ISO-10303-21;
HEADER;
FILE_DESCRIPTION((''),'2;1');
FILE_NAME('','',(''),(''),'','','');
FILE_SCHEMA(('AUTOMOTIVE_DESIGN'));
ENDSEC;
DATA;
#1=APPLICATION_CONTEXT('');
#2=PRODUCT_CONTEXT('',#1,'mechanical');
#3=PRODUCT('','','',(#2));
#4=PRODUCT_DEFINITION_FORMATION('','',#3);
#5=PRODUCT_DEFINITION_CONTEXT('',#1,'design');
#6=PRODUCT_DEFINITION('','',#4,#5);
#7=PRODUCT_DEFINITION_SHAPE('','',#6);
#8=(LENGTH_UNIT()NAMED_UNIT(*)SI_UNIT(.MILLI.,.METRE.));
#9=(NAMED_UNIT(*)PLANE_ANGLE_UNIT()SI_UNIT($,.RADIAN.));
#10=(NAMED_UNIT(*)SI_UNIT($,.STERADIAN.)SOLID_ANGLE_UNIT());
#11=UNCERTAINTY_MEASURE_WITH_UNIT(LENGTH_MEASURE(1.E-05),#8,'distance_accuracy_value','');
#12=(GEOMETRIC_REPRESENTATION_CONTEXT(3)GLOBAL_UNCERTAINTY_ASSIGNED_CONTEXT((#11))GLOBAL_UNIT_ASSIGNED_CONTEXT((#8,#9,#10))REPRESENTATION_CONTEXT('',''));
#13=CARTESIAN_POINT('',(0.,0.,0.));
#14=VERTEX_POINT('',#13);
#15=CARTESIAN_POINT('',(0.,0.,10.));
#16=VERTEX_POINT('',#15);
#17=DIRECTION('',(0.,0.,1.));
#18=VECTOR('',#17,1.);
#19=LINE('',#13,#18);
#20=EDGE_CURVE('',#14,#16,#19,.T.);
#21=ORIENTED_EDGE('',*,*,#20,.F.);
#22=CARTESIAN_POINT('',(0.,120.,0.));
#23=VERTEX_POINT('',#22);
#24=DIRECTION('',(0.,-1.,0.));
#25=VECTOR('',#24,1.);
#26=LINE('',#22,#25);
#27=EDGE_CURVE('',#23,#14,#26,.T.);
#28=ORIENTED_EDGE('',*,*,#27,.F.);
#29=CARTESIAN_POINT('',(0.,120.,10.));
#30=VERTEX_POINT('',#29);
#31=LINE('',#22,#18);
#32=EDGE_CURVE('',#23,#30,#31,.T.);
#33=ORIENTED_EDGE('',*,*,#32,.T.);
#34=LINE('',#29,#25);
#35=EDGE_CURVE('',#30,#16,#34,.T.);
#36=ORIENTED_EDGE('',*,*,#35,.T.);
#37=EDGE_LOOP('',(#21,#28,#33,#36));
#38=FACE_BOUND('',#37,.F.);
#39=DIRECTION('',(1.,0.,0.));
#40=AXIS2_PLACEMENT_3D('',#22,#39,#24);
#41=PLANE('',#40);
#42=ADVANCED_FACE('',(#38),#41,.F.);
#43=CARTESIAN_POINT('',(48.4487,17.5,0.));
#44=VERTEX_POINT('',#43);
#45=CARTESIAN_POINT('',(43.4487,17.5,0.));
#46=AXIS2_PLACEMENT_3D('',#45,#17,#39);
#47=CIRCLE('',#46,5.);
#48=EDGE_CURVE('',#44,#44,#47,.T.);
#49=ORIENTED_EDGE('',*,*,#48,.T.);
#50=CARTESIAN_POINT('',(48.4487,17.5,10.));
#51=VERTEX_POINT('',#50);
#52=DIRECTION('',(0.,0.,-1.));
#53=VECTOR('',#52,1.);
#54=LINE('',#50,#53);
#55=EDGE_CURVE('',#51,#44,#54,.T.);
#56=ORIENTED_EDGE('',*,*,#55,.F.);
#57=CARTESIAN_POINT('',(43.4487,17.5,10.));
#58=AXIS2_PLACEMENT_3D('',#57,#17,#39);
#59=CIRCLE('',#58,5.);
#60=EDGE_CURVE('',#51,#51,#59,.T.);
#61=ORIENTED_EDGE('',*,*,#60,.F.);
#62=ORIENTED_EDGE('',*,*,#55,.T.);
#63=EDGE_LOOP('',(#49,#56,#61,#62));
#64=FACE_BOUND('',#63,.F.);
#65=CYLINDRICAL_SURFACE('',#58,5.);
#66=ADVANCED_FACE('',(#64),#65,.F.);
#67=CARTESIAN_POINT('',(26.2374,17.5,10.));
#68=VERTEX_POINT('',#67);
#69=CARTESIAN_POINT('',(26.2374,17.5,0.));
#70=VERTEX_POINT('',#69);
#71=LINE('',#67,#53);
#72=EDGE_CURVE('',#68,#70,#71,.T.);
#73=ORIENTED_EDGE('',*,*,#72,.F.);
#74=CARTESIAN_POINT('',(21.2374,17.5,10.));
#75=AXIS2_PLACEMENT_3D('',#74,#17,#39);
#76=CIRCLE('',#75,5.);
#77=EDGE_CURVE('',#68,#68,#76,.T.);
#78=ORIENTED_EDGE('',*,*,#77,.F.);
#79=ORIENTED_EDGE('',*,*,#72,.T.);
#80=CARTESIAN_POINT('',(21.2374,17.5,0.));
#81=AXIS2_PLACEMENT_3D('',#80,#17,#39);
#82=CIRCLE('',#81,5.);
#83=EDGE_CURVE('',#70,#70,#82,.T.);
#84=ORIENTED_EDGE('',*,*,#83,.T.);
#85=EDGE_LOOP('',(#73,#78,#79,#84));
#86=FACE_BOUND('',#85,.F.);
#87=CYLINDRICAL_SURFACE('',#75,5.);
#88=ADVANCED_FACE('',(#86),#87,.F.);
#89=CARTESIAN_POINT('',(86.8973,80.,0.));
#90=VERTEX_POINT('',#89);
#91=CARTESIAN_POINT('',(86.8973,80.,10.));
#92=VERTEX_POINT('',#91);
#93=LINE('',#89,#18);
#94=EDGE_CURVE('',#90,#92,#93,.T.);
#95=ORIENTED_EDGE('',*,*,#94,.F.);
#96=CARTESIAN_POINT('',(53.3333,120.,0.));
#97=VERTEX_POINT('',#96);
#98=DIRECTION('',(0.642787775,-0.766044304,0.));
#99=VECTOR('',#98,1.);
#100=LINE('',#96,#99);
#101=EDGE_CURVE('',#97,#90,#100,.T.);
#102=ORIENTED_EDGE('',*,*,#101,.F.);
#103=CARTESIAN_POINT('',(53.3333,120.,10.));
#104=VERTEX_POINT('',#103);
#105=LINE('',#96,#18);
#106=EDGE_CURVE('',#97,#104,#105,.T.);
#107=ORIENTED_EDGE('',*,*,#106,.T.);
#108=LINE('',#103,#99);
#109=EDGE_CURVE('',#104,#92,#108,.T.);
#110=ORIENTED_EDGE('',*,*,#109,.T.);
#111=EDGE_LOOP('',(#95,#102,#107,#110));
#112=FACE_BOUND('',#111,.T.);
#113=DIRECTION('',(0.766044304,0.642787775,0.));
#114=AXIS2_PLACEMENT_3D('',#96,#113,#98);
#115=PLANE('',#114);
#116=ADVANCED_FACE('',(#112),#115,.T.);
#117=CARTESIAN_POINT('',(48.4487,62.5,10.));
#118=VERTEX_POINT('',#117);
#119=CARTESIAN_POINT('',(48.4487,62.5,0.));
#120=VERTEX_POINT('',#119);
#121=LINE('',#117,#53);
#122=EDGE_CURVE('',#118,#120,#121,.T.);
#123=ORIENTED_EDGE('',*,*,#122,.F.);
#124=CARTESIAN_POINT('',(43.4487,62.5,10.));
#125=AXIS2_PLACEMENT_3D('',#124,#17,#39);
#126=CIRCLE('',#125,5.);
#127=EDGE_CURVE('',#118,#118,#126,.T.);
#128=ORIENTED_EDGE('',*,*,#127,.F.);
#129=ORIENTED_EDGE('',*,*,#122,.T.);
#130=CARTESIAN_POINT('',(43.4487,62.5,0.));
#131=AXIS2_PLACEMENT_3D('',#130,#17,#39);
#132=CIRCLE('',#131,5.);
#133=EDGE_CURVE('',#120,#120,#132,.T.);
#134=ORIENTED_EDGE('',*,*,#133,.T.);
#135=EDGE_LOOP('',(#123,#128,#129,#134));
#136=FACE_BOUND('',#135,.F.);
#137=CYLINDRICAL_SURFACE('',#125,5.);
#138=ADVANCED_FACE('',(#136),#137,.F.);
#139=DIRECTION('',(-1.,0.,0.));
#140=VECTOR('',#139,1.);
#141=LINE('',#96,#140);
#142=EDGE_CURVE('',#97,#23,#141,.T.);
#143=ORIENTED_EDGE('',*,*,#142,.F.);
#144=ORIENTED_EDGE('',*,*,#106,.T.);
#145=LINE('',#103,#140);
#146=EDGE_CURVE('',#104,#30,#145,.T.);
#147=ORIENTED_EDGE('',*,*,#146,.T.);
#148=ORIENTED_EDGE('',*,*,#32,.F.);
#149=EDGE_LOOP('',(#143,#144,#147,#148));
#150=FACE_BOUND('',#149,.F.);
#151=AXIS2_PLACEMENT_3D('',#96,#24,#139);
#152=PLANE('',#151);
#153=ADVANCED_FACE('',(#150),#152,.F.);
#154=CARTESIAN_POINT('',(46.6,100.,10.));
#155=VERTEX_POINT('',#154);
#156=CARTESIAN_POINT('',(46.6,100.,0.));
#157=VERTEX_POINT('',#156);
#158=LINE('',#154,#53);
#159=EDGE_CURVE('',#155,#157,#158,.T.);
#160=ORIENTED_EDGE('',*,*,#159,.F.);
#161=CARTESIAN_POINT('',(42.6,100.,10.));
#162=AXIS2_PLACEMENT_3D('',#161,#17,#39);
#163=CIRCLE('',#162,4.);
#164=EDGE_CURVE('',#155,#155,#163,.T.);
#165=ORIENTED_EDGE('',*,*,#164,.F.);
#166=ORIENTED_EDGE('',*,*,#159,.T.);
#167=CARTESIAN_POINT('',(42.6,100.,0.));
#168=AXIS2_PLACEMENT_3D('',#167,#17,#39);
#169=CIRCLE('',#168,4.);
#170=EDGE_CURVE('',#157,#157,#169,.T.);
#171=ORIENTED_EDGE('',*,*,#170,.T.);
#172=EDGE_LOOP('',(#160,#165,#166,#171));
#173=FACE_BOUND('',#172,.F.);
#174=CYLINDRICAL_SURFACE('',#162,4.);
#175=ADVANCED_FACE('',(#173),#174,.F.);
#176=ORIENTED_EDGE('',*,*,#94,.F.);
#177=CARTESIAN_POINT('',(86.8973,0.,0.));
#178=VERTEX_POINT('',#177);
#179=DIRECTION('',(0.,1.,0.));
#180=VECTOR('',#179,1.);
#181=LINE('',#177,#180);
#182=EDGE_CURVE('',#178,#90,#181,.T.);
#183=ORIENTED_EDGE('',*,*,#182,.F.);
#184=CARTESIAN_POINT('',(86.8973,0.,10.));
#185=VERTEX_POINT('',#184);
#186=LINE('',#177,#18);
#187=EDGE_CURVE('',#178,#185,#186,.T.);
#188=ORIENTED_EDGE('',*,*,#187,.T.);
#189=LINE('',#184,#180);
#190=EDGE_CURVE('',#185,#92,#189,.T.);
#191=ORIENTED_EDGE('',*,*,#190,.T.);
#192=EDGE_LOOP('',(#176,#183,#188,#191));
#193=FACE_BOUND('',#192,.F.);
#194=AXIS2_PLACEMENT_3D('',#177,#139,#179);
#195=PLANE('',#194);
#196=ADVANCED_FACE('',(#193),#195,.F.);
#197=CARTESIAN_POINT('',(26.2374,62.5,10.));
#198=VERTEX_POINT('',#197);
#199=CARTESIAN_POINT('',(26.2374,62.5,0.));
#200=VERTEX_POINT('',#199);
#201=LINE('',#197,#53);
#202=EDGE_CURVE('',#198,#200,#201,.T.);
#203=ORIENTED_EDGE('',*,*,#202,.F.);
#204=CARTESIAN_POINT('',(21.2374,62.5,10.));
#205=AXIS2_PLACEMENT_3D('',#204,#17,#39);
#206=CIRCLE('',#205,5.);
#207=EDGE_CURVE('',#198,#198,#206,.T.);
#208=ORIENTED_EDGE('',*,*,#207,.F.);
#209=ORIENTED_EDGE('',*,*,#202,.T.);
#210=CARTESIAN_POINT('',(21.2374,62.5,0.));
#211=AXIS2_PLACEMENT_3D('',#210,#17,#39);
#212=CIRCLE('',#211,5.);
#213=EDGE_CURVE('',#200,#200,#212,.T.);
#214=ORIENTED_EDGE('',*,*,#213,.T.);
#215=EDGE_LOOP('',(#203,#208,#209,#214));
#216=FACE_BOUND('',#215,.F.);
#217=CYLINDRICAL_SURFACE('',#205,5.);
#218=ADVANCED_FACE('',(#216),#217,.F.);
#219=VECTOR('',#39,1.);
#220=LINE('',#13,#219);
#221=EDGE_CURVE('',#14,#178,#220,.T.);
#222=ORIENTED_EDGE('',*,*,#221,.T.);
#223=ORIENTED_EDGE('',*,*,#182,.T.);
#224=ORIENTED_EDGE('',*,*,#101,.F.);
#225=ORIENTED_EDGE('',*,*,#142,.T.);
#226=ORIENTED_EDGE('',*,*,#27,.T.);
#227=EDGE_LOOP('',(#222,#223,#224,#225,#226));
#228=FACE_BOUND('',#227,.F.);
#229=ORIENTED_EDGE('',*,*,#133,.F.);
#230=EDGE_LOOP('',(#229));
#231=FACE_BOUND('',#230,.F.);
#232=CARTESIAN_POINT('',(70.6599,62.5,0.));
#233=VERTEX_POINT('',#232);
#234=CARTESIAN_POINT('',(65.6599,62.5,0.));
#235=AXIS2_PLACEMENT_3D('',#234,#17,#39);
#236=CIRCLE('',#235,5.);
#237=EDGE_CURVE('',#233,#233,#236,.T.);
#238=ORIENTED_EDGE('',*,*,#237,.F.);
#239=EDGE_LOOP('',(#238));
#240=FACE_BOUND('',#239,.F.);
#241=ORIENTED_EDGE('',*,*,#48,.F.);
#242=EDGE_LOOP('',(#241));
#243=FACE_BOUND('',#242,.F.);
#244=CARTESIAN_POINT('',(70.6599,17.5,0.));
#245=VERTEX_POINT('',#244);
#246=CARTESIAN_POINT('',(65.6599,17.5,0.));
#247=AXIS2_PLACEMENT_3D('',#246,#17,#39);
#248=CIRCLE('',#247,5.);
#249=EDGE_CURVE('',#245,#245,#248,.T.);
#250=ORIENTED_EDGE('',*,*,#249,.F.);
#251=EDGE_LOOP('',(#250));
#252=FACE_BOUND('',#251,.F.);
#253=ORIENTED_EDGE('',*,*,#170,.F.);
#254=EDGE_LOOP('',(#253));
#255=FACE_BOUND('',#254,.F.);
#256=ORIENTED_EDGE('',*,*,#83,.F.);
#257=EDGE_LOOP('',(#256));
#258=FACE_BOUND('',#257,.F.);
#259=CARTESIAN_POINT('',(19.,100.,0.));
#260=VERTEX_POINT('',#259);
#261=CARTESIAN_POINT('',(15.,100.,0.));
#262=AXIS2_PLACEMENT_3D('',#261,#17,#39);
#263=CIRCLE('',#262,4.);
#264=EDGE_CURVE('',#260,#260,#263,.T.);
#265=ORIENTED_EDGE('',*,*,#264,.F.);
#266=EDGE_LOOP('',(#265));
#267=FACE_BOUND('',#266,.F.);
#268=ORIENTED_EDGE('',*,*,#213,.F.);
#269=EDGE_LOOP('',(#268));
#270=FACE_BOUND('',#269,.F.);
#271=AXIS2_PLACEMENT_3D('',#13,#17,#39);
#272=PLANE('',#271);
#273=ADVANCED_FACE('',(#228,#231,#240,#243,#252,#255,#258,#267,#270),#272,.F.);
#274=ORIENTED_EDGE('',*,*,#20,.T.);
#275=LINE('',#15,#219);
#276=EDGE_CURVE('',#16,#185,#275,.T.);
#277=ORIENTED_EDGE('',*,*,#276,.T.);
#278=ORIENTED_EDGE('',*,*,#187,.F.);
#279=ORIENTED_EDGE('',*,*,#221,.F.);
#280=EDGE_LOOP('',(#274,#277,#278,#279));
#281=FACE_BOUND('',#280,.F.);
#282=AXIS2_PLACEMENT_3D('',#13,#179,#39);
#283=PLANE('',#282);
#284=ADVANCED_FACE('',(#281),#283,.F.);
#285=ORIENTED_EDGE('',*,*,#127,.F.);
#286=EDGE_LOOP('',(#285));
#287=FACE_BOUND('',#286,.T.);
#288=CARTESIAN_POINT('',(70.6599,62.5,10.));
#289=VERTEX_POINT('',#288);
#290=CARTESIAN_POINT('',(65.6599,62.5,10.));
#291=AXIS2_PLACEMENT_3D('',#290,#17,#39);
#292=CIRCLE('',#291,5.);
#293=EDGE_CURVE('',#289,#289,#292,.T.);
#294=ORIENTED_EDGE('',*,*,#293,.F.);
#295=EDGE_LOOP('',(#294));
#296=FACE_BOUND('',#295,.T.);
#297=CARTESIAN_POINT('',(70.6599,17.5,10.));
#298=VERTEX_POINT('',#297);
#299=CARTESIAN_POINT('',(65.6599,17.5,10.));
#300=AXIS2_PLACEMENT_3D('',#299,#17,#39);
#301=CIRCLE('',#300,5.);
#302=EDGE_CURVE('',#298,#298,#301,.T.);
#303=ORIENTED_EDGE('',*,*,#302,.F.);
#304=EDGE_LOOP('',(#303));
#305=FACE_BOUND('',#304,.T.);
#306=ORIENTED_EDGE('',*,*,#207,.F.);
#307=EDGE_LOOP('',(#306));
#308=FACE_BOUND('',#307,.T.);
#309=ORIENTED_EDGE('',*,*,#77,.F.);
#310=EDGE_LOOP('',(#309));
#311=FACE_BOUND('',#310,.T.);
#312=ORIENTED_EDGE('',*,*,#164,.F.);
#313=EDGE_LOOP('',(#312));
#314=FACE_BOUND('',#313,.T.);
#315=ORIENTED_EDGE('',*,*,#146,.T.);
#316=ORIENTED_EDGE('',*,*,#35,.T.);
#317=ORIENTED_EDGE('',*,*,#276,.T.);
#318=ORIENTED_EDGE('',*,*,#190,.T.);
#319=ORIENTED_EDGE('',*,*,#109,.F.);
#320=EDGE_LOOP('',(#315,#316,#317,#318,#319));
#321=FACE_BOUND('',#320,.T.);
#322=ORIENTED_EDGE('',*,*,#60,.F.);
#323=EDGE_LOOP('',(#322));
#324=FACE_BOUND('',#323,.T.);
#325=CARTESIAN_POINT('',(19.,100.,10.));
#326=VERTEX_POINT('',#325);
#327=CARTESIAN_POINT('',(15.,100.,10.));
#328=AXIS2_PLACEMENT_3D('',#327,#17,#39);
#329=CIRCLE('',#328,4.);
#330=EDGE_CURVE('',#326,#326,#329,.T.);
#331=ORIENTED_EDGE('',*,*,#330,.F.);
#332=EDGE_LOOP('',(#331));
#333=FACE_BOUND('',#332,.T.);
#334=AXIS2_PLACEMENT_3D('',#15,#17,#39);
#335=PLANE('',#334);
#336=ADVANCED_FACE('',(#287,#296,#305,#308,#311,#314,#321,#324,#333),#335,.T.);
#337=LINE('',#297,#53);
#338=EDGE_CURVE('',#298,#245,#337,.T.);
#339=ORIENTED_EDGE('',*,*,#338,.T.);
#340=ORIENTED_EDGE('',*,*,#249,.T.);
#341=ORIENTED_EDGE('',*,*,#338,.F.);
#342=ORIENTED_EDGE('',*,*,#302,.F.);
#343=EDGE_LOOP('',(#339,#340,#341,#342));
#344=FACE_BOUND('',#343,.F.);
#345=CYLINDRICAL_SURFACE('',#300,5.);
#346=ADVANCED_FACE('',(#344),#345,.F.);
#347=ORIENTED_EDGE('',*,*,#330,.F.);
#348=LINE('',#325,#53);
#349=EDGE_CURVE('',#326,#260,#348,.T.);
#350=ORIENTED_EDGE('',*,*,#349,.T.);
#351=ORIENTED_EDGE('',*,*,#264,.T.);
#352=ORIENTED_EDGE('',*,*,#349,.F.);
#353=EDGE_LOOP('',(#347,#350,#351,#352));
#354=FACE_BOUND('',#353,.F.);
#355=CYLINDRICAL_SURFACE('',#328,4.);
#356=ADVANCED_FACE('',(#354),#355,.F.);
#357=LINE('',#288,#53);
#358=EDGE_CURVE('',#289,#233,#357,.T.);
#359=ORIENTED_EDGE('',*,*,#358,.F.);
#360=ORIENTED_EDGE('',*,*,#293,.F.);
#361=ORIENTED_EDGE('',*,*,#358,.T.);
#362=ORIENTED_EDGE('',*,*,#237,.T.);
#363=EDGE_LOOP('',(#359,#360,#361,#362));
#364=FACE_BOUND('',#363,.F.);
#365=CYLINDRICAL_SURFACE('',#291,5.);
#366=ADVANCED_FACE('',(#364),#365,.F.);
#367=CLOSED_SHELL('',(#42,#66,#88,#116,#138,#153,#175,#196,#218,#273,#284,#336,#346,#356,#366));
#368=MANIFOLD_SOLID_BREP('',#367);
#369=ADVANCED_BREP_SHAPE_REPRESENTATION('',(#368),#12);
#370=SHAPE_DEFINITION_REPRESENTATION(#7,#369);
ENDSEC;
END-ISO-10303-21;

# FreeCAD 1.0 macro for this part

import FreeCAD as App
import Part
import Sketcher
Q = App.Units.Quantity

doc = App.newDocument("Part")
body = doc.addObject("PartDesign::Body", "Body")

sketch1 = body.newObject("Sketcher::SketchObject", "Sketch")
sketch1.AttachmentSupport = (doc.getObject("XY_Plane"), [""])
sketch1.MapMode = "FlatFace"
sketch1.addGeometry(Part.LineSegment(App.Vector(0, 120, 0), App.Vector(0, 0, 0)), False)
sketch1.addGeometry(Part.LineSegment(App.Vector(0, 0, 0), App.Vector(87, 0, 0)), False)
sketch1.addGeometry(Part.LineSegment(App.Vector(87, 0, 0), App.Vector(87, 80, 0)), False)
sketch1.addGeometry(Part.LineSegment(App.Vector(87, 80, 0), App.Vector(53, 120, 0)), False)
sketch1.addGeometry(Part.LineSegment(App.Vector(53, 120, 0), App.Vector(0, 120, 0)), False)
sketch1.addConstraint(Sketcher.Constraint("Coincident", 0, 2, 1, 1))
sketch1.addConstraint(Sketcher.Constraint("Coincident", 1, 2, 2, 1))
sketch1.addConstraint(Sketcher.Constraint("Coincident", 2, 2, 3, 1))
sketch1.addConstraint(Sketcher.Constraint("Coincident", 3, 2, 4, 1))
sketch1.addConstraint(Sketcher.Constraint("Coincident", 4, 2, 0, 1))
sketch1.addConstraint(Sketcher.Constraint("Vertical", 0))
sketch1.addConstraint(Sketcher.Constraint("Horizontal", 1))
sketch1.addConstraint(Sketcher.Constraint("Vertical", 2))
sketch1.addConstraint(Sketcher.Constraint("Horizontal", 4))
sketch1.addConstraint(Sketcher.Constraint("Coincident", 0, 2, -1, 1))
sketch1.addConstraint(Sketcher.Constraint("DistanceY", 0, 2, 0, 1, 120.0))
sketch1.addConstraint(Sketcher.Constraint("DistanceY", 2, 1, 2, 2, 80.0))
sketch1.addConstraint(Sketcher.Constraint("Angle", 3, Q("130 deg")))
sketch1.addConstraint(Sketcher.Constraint("DistanceX", 4, 2, 4, 1, 53.3333))
pad1 = body.newObject("PartDesign::Pad", "Pad")
pad1.Profile = sketch1
pad1.Length = 10

sketch2 = body.newObject("Sketcher::SketchObject", "Sketch001")
sketch2.AttachmentSupport = (doc.getObject("XY_Plane"), [""])
sketch2.MapMode = "FlatFace"
sketch2.AttachmentOffset = App.Placement(App.Vector(0, 0, 10), App.Rotation())
sketch2.addGeometry(Part.Circle(App.Vector(21.2, 62.5, 0), App.Vector(0, 0, 1), 5), False)
sketch2.addGeometry(Part.Circle(App.Vector(43.4, 62.5, 0), App.Vector(0, 0, 1), 5), False)
sketch2.addGeometry(Part.Circle(App.Vector(65.7, 62.5, 0), App.Vector(0, 0, 1), 5), False)
sketch2.addGeometry(Part.Circle(App.Vector(21.2, 17.5, 0), App.Vector(0, 0, 1), 5), False)
sketch2.addGeometry(Part.Circle(App.Vector(43.4, 17.5, 0), App.Vector(0, 0, 1), 5), False)
sketch2.addGeometry(Part.Circle(App.Vector(65.7, 17.5, 0), App.Vector(0, 0, 1), 5), False)
sketch2.addGeometry(Part.Circle(App.Vector(15, 100, 0), App.Vector(0, 0, 1), 4), False)
sketch2.addGeometry(Part.Circle(App.Vector(42.6, 100, 0), App.Vector(0, 0, 1), 4), False)
sketch2.addConstraint(Sketcher.Constraint("Equal", 0, 1))
sketch2.addConstraint(Sketcher.Constraint("Equal", 1, 2))
sketch2.addConstraint(Sketcher.Constraint("Equal", 2, 3))
sketch2.addConstraint(Sketcher.Constraint("Equal", 3, 4))
sketch2.addConstraint(Sketcher.Constraint("Equal", 4, 5))
sketch2.addConstraint(Sketcher.Constraint("Equal", 6, 7))
sketch2.addConstraint(Sketcher.Constraint("Horizontal", 0, 3, 1, 3))
sketch2.addConstraint(Sketcher.Constraint("Horizontal", 1, 3, 2, 3))
sketch2.addConstraint(Sketcher.Constraint("Horizontal", 3, 3, 4, 3))
sketch2.addConstraint(Sketcher.Constraint("Horizontal", 4, 3, 5, 3))
sketch2.addConstraint(Sketcher.Constraint("Horizontal", 6, 3, 7, 3))
sketch2.addConstraint(Sketcher.Constraint("Vertical", 0, 3, 3, 3))
sketch2.addConstraint(Sketcher.Constraint("Vertical", 1, 3, 4, 3))
sketch2.addConstraint(Sketcher.Constraint("Vertical", 2, 3, 5, 3))
sketch2.addConstraint(Sketcher.Constraint("Diameter", 0, 10.0))
sketch2.addConstraint(Sketcher.Constraint("Diameter", 6, 8.0))
sketch2.addConstraint(Sketcher.Constraint("DistanceX", -1, 1, 6, 3, 15.0))
sketch2.addConstraint(Sketcher.Constraint("DistanceY", 3, 3, 0, 3, 45.0))
sketch2.addConstraint(Sketcher.Constraint("DistanceY", -1, 1, 6, 3, 100.0))
sketch2.addConstraint(Sketcher.Constraint("DistanceX", -1, 1, 0, 3, 21.2374))
sketch2.addConstraint(Sketcher.Constraint("DistanceY", -1, 1, 0, 3, 62.5))
sketch2.addConstraint(Sketcher.Constraint("DistanceX", -1, 1, 7, 3, 42.6))
sketch2.addConstraint(Sketcher.Constraint("DistanceX", 0, 3, 1, 3, 22.2113))
sketch2.addConstraint(Sketcher.Constraint("DistanceX", 1, 3, 2, 3, 22.2112))
pocket1 = body.newObject("PartDesign::Pocket", "Pocket")
pocket1.Profile = sketch2
pocket1.Type = "UpToFirst"

doc.recompute()
